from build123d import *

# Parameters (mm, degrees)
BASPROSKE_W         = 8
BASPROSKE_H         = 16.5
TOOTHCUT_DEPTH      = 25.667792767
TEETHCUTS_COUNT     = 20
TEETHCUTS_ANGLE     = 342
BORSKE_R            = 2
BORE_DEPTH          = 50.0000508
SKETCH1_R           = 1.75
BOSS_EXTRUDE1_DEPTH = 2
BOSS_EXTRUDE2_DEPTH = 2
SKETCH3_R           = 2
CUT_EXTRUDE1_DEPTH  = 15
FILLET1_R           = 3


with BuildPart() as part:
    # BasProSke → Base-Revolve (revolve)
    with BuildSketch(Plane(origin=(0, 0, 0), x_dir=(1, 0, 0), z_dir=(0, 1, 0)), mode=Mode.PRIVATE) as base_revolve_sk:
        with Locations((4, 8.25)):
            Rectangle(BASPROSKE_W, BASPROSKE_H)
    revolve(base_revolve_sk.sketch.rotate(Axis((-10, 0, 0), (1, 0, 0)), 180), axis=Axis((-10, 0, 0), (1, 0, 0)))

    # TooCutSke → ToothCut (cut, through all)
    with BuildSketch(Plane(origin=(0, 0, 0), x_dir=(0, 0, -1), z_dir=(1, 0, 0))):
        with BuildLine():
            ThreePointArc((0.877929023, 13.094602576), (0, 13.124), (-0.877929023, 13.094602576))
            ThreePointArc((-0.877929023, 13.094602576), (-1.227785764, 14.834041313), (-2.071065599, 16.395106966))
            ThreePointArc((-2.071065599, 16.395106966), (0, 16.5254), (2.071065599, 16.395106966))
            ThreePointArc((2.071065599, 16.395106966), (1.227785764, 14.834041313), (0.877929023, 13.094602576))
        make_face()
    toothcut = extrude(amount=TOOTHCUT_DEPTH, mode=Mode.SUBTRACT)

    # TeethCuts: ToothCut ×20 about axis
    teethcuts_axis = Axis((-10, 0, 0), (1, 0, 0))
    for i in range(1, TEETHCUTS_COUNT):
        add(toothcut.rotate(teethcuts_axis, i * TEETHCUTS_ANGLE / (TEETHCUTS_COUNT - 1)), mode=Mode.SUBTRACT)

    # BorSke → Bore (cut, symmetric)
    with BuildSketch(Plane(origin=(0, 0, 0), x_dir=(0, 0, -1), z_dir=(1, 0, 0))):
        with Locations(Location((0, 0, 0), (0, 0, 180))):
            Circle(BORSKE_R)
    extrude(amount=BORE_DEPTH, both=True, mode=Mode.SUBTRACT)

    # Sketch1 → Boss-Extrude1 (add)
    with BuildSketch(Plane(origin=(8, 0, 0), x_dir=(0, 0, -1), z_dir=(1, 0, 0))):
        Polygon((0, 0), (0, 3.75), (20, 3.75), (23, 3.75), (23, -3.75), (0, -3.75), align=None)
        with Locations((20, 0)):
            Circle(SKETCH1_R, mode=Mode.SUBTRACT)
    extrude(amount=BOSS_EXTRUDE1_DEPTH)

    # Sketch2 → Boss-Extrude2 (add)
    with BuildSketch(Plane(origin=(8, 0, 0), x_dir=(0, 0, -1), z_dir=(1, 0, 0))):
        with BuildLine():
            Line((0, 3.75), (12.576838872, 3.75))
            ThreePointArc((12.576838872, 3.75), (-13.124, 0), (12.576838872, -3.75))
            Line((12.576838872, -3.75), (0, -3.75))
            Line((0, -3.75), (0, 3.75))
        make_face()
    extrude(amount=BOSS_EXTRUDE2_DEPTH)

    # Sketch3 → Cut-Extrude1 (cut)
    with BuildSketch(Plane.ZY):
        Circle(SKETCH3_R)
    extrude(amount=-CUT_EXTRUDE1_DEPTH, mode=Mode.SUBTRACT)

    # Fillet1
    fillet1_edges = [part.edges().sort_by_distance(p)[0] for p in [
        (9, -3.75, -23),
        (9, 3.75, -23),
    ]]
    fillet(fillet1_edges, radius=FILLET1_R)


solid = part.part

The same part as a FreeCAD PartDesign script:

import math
import FreeCAD as App
import Part
import Sketcher
from FreeCAD import Vector
Q = App.Units.Quantity


def edges_at(feature, points):
    """Names of the edges that pass closest to the given points."""
    edges = feature.Shape.Edges
    near = lambda p: min(range(len(edges)), key=lambda i: edges[i].distToShape(Part.Vertex(*p))[0])
    return sorted({f"Edge{near(p) + 1}" for p in points})

doc = App.newDocument("Part")
params = doc.addObject("Spreadsheet::Sheet", "Params")
for row, (alias, value) in enumerate([
    ("sketch1_width", "8 mm"),
    ("sketch1_height", "16.5 mm"),
    ("revolution_angle", "360 deg"),
    ("sketch2_radius", "6 mm"),
    ("sketch3_diameter", "4 mm"),
    ("pocket2_length", "100.000102 mm"),
    ("sketch4_diameter", "3.5 mm"),
    ("sketch4_height", "23 mm"),
    ("sketch4_width", "7.5 mm"),
    ("pad1_length", "2 mm"),
    ("sketch5_width", "7.5 mm"),
    ("pad2_length", "2 mm"),
    ("sketch6_diameter", "4 mm"),
    ("pocket3_length", "15 mm"),
    ("fillet_radius", "3 mm"),
], start=1):
    params.set(f"A{row}", alias)
    params.set(f"B{row}", "=" + value)
    params.setAlias(f"B{row}", alias)

body = doc.addObject("PartDesign::Body", "Body")

sketch1 = body.newObject("Sketcher::SketchObject", "Sketch")
sketch1.AttachmentSupport = (doc.getObject("XZ_Plane"), [""])
sketch1.MapMode = "FlatFace"
sketch1.addGeometry([
    Part.LineSegment(Vector(0, -16, 0), Vector(0, 0, 0)),
    Part.LineSegment(Vector(0, 0, 0), Vector(8, 0, 0)),
    Part.LineSegment(Vector(8, 0, 0), Vector(8, -16, 0)),
    Part.LineSegment(Vector(8, -16, 0), Vector(0, -16, 0)),
], False)
sketch1.addConstraint([
    Sketcher.Constraint("Coincident", 0, 2, 1, 1),
    Sketcher.Constraint("Coincident", 1, 2, 2, 1),
    Sketcher.Constraint("Coincident", 2, 2, 3, 1),
    Sketcher.Constraint("Coincident", 3, 2, 0, 1),
    Sketcher.Constraint("Vertical", 0),
    Sketcher.Constraint("Horizontal", 1),
    Sketcher.Constraint("Vertical", 2),
    Sketcher.Constraint("Horizontal", 3),
    Sketcher.Constraint("Coincident", 0, 2, -1, 1),
    Sketcher.Constraint("DistanceX", 1, 1, 1, 2, Q("8 mm")),
    Sketcher.Constraint("DistanceY", 0, 1, 0, 2, Q("16.5 mm")),
])
sketch1.setExpression("Constraints[9]", "Params.sketch1_width")
sketch1.setExpression("Constraints[10]", "Params.sketch1_height")
revolution = body.newObject("PartDesign::Revolution", "Revolution")
revolution.Profile = sketch1
revolution.ReferenceAxis = (sketch1, ["H_Axis"])
revolution.setExpression("Angle", "Params.revolution_angle")

sketch2 = body.newObject("Sketcher::SketchObject", "Sketch001")
sketch2.AttachmentSupport = (doc.getObject("YZ_Plane"), [""])
sketch2.MapMode = "FlatFace"
sketch2.addGeometry([
    Part.ArcOfCircle(Part.Circle(Vector(0, 0, 0), Vector(0, 0, 1), 13.1), math.radians(-3.84), math.radians(3.84)),
    Part.ArcOfCircle(Part.Circle(Vector(12.8, -6.9, 0), Vector(0, 0, 1), 6), math.radians(53), math.radians(87)),
    Part.ArcOfCircle(Part.Circle(Vector(0, 0, 0), Vector(0, 0, 1), 16.5), math.radians(-7.2), math.radians(7.2)),
    Part.ArcOfCircle(Part.Circle(Vector(12.8, 6.9, 0), Vector(0, 0, 1), 6), math.radians(-87), math.radians(-53)),
], False)
sketch2.addConstraint([
    Sketcher.Constraint("Coincident", 0, 1, 1, 2),
    Sketcher.Constraint("Coincident", 1, 1, 2, 1),
    Sketcher.Constraint("Coincident", 2, 2, 3, 2),
    Sketcher.Constraint("Coincident", 3, 1, 0, 2),
    Sketcher.Constraint("Coincident", 0, 3, -1, 1),
    Sketcher.Constraint("Coincident", 2, 3, -1, 1),
    Sketcher.Constraint("Equal", 1, 3),
    Sketcher.Constraint("Symmetric", 1, 3, 3, 3, -1),
    Sketcher.Constraint("Radius", 1, Q("6 mm")),
    Sketcher.Constraint("Radius", 0, Q("13.124 mm")),
    Sketcher.Constraint("Radius", 2, Q("16.5254 mm")),
    Sketcher.Constraint("DistanceY", 0, 1, -1, 1, Q("0.877929 mm")),
    Sketcher.Constraint("DistanceY", 1, 3, 3, 3, Q("13.740811 mm")),
])
sketch2.setExpression("Constraints[8]", "Params.sketch2_radius")
pocket1 = body.newObject("PartDesign::Pocket", "Pocket")
pocket1.Profile = sketch2
pocket1.Type = "ThroughAll"
pocket1.Reversed = True
doc.recompute()

polarpattern = body.newObject("PartDesign::PolarPattern", "PolarPattern")
polarpattern.Originals = [pocket1]
polarpattern.Axis = (doc.getObject("X_Axis"), [""])
polarpattern.Angle = 360
polarpattern.Occurrences = 20
body.Tip = polarpattern

sketch3 = body.newObject("Sketcher::SketchObject", "Sketch002")
sketch3.AttachmentSupport = (doc.getObject("YZ_Plane"), [""])
sketch3.MapMode = "FlatFace"
sketch3.addGeometry(Part.Circle(Vector(0, 0, 0), Vector(0, 0, 1), 2), False)
sketch3.addConstraint([
    Sketcher.Constraint("Coincident", 0, 3, -1, 1),
    Sketcher.Constraint("Diameter", 0, Q("4 mm")),
])
sketch3.setExpression("Constraints[1]", "Params.sketch3_diameter")
pocket2 = body.newObject("PartDesign::Pocket", "Pocket001")
pocket2.Profile = sketch3
pocket2.setExpression("Length", "Params.pocket2_length")
pocket2.Midplane = True

sketch4 = body.newObject("Sketcher::SketchObject", "Sketch003")
sketch4.AttachmentSupport = (doc.getObject("YZ_Plane"), [""])
sketch4.MapMode = "FlatFace"
sketch4.AttachmentOffset = App.Placement(Vector(0, 0, 8), App.Rotation())
sketch4.addGeometry([
    Part.LineSegment(Vector(3.8, 0, 0), Vector(-3.8, 0, 0)),
    Part.LineSegment(Vector(-3.8, 0, 0), Vector(-3.8, -23, 0)),
    Part.LineSegment(Vector(-3.8, -23, 0), Vector(3.8, -23, 0)),
    Part.LineSegment(Vector(3.8, -23, 0), Vector(3.8, 0, 0)),
    Part.Circle(Vector(0, -20, 0), Vector(0, 0, 1), 1.8),
], False)
sketch4.addConstraint([
    Sketcher.Constraint("Coincident", 0, 2, 1, 1),
    Sketcher.Constraint("Coincident", 1, 2, 2, 1),
    Sketcher.Constraint("Coincident", 2, 2, 3, 1),
    Sketcher.Constraint("Coincident", 3, 2, 0, 1),
    Sketcher.Constraint("Horizontal", 0),
    Sketcher.Constraint("Vertical", 1),
    Sketcher.Constraint("Horizontal", 2),
    Sketcher.Constraint("Vertical", 3),
    Sketcher.Constraint("Symmetric", 0, 2, 3, 2, -1, 1),
    Sketcher.Constraint("PointOnObject", 4, 3, -2),
    Sketcher.Constraint("Diameter", 4, Q("3.5 mm")),
    Sketcher.Constraint("DistanceY", 1, 2, 1, 1, Q("23 mm")),
    Sketcher.Constraint("DistanceX", 0, 2, 0, 1, Q("7.5 mm")),
    Sketcher.Constraint("DistanceY", 4, 3, -1, 1, Q("20 mm")),
])
sketch4.setExpression("Constraints[10]", "Params.sketch4_diameter")
sketch4.setExpression("Constraints[11]", "Params.sketch4_height")
sketch4.setExpression("Constraints[12]", "Params.sketch4_width")
pad1 = body.newObject("PartDesign::Pad", "Pad")
pad1.Profile = sketch4
pad1.setExpression("Length", "Params.pad1_length")

sketch5 = body.newObject("Sketcher::SketchObject", "Sketch004")
sketch5.AttachmentSupport = (doc.getObject("YZ_Plane"), [""])
sketch5.MapMode = "FlatFace"
sketch5.AttachmentOffset = App.Placement(Vector(0, 0, 8), App.Rotation())
sketch5.addGeometry([
    Part.LineSegment(Vector(4, 0, 0), Vector(4, -13, 0)),
    Part.ArcOfCircle(Part.Circle(Vector(0, 0, 0), Vector(0, 0, 1), 13), math.radians(-73), math.radians(253)),
    Part.LineSegment(Vector(-4, -13, 0), Vector(-4, 0, 0)),
    Part.LineSegment(Vector(-4, 0, 0), Vector(4, 0, 0)),
], False)
sketch5.addConstraint([
    Sketcher.Constraint("Coincident", 0, 2, 1, 1),
    Sketcher.Constraint("Coincident", 1, 2, 2, 1),
    Sketcher.Constraint("Coincident", 2, 2, 3, 1),
    Sketcher.Constraint("Coincident", 3, 2, 0, 1),
    Sketcher.Constraint("Vertical", 0),
    Sketcher.Constraint("Vertical", 2),
    Sketcher.Constraint("Horizontal", 3),
    Sketcher.Constraint("Coincident", 1, 3, -1, 1),
    Sketcher.Constraint("Symmetric", 2, 2, 3, 2, -1, 1),
    Sketcher.Constraint("DistanceX", 3, 1, 3, 2, Q("7.5 mm")),
    Sketcher.Constraint("Radius", 1, Q("13.124 mm")),
])
sketch5.setExpression("Constraints[9]", "Params.sketch5_width")
pad2 = body.newObject("PartDesign::Pad", "Pad001")
pad2.Profile = sketch5
pad2.setExpression("Length", "Params.pad2_length")

sketch6 = body.newObject("Sketcher::SketchObject", "Sketch005")
sketch6.AttachmentSupport = (doc.getObject("YZ_Plane"), [""])
sketch6.MapMode = "FlatFace"
sketch6.addGeometry(Part.Circle(Vector(0, 0, 0), Vector(0, 0, 1), 2), False)
sketch6.addConstraint([
    Sketcher.Constraint("Coincident", 0, 3, -1, 1),
    Sketcher.Constraint("Diameter", 0, Q("4 mm")),
])
sketch6.setExpression("Constraints[1]", "Params.sketch6_diameter")
pocket3 = body.newObject("PartDesign::Pocket", "Pocket002")
pocket3.Profile = sketch6
pocket3.setExpression("Length", "Params.pocket3_length")
pocket3.Reversed = True
doc.recompute()

fillet = body.newObject("PartDesign::Fillet", "Fillet")
fillet.Base = (pocket3, edges_at(pocket3, [(9, -3.75, -23), (9, 3.75, -23)]))
fillet.setExpression("Radius", "Params.fillet_radius")

doc.recompute()
